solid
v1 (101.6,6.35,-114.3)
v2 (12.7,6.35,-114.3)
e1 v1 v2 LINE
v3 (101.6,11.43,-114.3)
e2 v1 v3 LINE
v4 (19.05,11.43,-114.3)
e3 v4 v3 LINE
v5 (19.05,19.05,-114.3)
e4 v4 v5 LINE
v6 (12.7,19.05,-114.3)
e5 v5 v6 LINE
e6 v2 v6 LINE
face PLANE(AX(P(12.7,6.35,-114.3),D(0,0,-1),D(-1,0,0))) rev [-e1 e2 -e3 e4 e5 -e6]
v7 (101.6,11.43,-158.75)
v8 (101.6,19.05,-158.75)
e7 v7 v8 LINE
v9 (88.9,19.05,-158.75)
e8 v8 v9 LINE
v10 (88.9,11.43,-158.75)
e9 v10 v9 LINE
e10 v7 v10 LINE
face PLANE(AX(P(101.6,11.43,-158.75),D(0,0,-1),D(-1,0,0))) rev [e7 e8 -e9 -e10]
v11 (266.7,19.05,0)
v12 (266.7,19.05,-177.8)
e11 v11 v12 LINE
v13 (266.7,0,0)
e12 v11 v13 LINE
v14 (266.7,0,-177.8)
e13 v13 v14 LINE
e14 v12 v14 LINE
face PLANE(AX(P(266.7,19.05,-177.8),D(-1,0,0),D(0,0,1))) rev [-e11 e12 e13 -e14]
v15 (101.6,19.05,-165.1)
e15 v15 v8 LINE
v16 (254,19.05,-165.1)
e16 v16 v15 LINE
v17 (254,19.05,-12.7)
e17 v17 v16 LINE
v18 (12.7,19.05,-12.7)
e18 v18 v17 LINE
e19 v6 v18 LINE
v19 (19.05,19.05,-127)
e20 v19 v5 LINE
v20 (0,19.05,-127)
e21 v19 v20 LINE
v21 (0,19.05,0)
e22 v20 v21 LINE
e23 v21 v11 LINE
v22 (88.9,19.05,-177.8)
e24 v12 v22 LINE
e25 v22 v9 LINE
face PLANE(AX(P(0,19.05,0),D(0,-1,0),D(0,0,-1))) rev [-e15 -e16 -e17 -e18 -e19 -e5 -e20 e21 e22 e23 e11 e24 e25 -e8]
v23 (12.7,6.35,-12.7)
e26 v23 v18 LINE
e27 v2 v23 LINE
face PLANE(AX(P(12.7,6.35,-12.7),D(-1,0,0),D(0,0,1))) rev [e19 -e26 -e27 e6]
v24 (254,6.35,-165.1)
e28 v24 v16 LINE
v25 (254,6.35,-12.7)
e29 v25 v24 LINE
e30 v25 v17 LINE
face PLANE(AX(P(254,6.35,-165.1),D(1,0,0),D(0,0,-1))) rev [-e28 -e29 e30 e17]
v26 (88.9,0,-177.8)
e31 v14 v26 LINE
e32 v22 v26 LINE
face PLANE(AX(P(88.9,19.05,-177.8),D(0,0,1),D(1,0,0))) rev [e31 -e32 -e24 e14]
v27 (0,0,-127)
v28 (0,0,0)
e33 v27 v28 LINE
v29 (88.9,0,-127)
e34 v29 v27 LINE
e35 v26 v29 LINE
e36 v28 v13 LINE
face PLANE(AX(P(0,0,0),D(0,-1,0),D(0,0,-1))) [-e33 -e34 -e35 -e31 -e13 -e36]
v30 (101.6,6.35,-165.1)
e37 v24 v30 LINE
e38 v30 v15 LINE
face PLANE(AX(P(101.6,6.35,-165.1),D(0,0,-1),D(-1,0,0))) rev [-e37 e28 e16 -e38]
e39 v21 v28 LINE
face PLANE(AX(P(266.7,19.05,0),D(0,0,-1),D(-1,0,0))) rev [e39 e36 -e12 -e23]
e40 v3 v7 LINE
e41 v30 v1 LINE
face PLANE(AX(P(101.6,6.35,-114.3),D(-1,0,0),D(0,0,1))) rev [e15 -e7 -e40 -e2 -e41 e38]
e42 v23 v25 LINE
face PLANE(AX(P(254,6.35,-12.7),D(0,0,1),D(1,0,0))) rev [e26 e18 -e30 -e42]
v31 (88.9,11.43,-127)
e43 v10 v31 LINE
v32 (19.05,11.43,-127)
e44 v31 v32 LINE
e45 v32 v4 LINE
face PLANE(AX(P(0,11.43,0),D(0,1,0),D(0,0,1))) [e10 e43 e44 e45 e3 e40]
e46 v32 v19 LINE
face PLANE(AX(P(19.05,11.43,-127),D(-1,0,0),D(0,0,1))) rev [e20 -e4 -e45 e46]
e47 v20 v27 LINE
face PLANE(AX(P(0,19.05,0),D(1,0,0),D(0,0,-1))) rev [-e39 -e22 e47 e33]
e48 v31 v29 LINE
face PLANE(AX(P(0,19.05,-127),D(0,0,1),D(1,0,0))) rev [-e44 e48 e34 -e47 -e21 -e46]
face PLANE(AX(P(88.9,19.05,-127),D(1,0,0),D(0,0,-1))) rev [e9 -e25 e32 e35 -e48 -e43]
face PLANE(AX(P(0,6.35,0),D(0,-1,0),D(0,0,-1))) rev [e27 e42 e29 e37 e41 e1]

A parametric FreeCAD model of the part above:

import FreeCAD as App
import Part
import Sketcher
from FreeCAD import Vector
Q = App.Units.Quantity

doc = App.newDocument("Part")
body = doc.addObject("PartDesign::Body", "Body")

sketch1 = doc.addObject("Sketcher::SketchObject", "Sketch")
body.addObject(sketch1)
sketch1.AttachmentSupport = (doc.XZ_Plane, [""])
sketch1.MapMode = "FlatFace"
sketch1.addGeometry(Part.LineSegment(Vector(0, -127, 0), Vector(0, 0, 0)), False)
sketch1.addGeometry(Part.LineSegment(Vector(0, 0, 0), Vector(267, 0, 0)), False)
sketch1.addGeometry(Part.LineSegment(Vector(267, 0, 0), Vector(267, -178, 0)), False)
sketch1.addGeometry(Part.LineSegment(Vector(267, -178, 0), Vector(89, -178, 0)), False)
sketch1.addGeometry(Part.LineSegment(Vector(89, -178, 0), Vector(89, -127, 0)), False)
sketch1.addGeometry(Part.LineSegment(Vector(89, -127, 0), Vector(0, -127, 0)), False)
sketch1.addConstraint(Sketcher.Constraint("Coincident", 0, 2, 1, 1))
sketch1.addConstraint(Sketcher.Constraint("Coincident", 1, 2, 2, 1))
sketch1.addConstraint(Sketcher.Constraint("Coincident", 2, 2, 3, 1))
sketch1.addConstraint(Sketcher.Constraint("Coincident", 3, 2, 4, 1))
sketch1.addConstraint(Sketcher.Constraint("Coincident", 4, 2, 5, 1))
sketch1.addConstraint(Sketcher.Constraint("Coincident", 5, 2, 0, 1))
sketch1.addConstraint(Sketcher.Constraint("Vertical", 0))
sketch1.addConstraint(Sketcher.Constraint("Horizontal", 1))
sketch1.addConstraint(Sketcher.Constraint("Vertical", 2))
sketch1.addConstraint(Sketcher.Constraint("Horizontal", 3))
sketch1.addConstraint(Sketcher.Constraint("Vertical", 4))
sketch1.addConstraint(Sketcher.Constraint("Horizontal", 5))
sketch1.addConstraint(Sketcher.Constraint("Coincident", 0, 2, -1, 1))
sketch1.addConstraint(Sketcher.Constraint("Equal", 3, 2))
sketch1.addConstraint(Sketcher.Constraint("DistanceX", 3, 2, 3, 1, Q("7 in")))
sketch1.addConstraint(Sketcher.Constraint("DistanceY", 0, 1, 0, 2, Q("5 in")))
sketch1.addConstraint(Sketcher.Constraint("DistanceX", 1, 1, 1, 2, Q("10.5 in")))
pad1 = doc.addObject("PartDesign::Pad", "Pad")
body.addObject(pad1)
pad1.Profile = sketch1
pad1.Length = Q("0.75 in")
pad1.Reversed = True

sketch2 = doc.addObject("Sketcher::SketchObject", "Sketch001")
body.addObject(sketch2)
sketch2.AttachmentSupport = (doc.XZ_Plane, [""])
sketch2.MapMode = "FlatFace"
sketch2.AttachmentOffset = App.Placement(Vector(0, 0, -0.75 * 25.4), App.Rotation())
sketch2.addGeometry(Part.LineSegment(Vector(102, -114, 0), Vector(13, -114, 0)), False)
sketch2.addGeometry(Part.LineSegment(Vector(13, -114, 0), Vector(13, -13, 0)), False)
sketch2.addGeometry(Part.LineSegment(Vector(13, -13, 0), Vector(254, -13, 0)), False)
sketch2.addGeometry(Part.LineSegment(Vector(254, -13, 0), Vector(254, -165, 0)), False)
sketch2.addGeometry(Part.LineSegment(Vector(254, -165, 0), Vector(102, -165, 0)), False)
sketch2.addGeometry(Part.LineSegment(Vector(102, -165, 0), Vector(102, -114, 0)), False)
sketch2.addConstraint(Sketcher.Constraint("Coincident", 0, 2, 1, 1))
sketch2.addConstraint(Sketcher.Constraint("Coincident", 1, 2, 2, 1))
sketch2.addConstraint(Sketcher.Constraint("Coincident", 2, 2, 3, 1))
sketch2.addConstraint(Sketcher.Constraint("Coincident", 3, 2, 4, 1))
sketch2.addConstraint(Sketcher.Constraint("Coincident", 4, 2, 5, 1))
sketch2.addConstraint(Sketcher.Constraint("Coincident", 5, 2, 0, 1))
sketch2.addConstraint(Sketcher.Constraint("Horizontal", 0))
sketch2.addConstraint(Sketcher.Constraint("Vertical", 1))
sketch2.addConstraint(Sketcher.Constraint("Horizontal", 2))
sketch2.addConstraint(Sketcher.Constraint("Vertical", 3))
sketch2.addConstraint(Sketcher.Constraint("Horizontal", 4))
sketch2.addConstraint(Sketcher.Constraint("Vertical", 5))
sketch2.addConstraint(Sketcher.Constraint("Equal", 4, 3))
sketch2.addConstraint(Sketcher.Constraint("DistanceX", 4, 2, 4, 1, Q("6 in")))
sketch2.addConstraint(Sketcher.Constraint("DistanceY", 1, 1, 1, 2, Q("4 in")))
sketch2.addConstraint(Sketcher.Constraint("DistanceX", 0, 2, 0, 1, Q("3.5 in")))
sketch2.addConstraint(Sketcher.Constraint("DistanceX", -1, 1, 2, 2, Q("10 in")))
sketch2.addConstraint(Sketcher.Constraint("DistanceY", 0, 2, -1, 1, Q("4.5 in")))
pocket1 = doc.addObject("PartDesign::Pocket", "Pocket")
body.addObject(pocket1)
pocket1.Profile = sketch2
pocket1.Length = Q("0.5 in")
pocket1.Reversed = True

sketch3 = doc.addObject("Sketcher::SketchObject", "Sketch002")
body.addObject(sketch3)
sketch3.AttachmentSupport = (doc.XZ_Plane, [""])
sketch3.MapMode = "FlatFace"
sketch3.AttachmentOffset = App.Placement(Vector(0, 0, -0.75 * 25.4), App.Rotation())
sketch3.addGeometry(Part.LineSegment(Vector(19, -127, 0), Vector(19, -114, 0)), False)
sketch3.addGeometry(Part.LineSegment(Vector(19, -114, 0), Vector(102, -114, 0)), False)
sketch3.addGeometry(Part.LineSegment(Vector(102, -114, 0), Vector(102, -159, 0)), False)
sketch3.addGeometry(Part.LineSegment(Vector(102, -159, 0), Vector(89, -159, 0)), False)
sketch3.addGeometry(Part.LineSegment(Vector(89, -159, 0), Vector(89, -127, 0)), False)
sketch3.addGeometry(Part.LineSegment(Vector(89, -127, 0), Vector(19, -127, 0)), False)
sketch3.addConstraint(Sketcher.Constraint("Coincident", 0, 2, 1, 1))
sketch3.addConstraint(Sketcher.Constraint("Coincident", 1, 2, 2, 1))
sketch3.addConstraint(Sketcher.Constraint("Coincident", 2, 2, 3, 1))
sketch3.addConstraint(Sketcher.Constraint("Coincident", 3, 2, 4, 1))
sketch3.addConstraint(Sketcher.Constraint("Coincident", 4, 2, 5, 1))
sketch3.addConstraint(Sketcher.Constraint("Coincident", 5, 2, 0, 1))
sketch3.addConstraint(Sketcher.Constraint("Vertical", 0))
sketch3.addConstraint(Sketcher.Constraint("Horizontal", 1))
sketch3.addConstraint(Sketcher.Constraint("Vertical", 2))
sketch3.addConstraint(Sketcher.Constraint("Horizontal", 3))
sketch3.addConstraint(Sketcher.Constraint("Vertical", 4))
sketch3.addConstraint(Sketcher.Constraint("Horizontal", 5))
sketch3.addConstraint(Sketcher.Constraint("Equal", 3, 0))
sketch3.addConstraint(Sketcher.Constraint("DistanceX", 3, 2, 3, 1, Q("0.5 in")))
sketch3.addConstraint(Sketcher.Constraint("DistanceX", -1, 1, 1, 2, Q("4 in")))
sketch3.addConstraint(Sketcher.Constraint("DistanceY", 4, 2, -1, 1, Q("5 in")))
sketch3.addConstraint(Sketcher.Constraint("DistanceX", 1, 1, 1, 2, Q("3.25 in")))
sketch3.addConstraint(Sketcher.Constraint("DistanceY", 2, 2, 2, 1, Q("1.75 in")))
pocket2 = doc.addObject("PartDesign::Pocket", "Pocket001")
body.addObject(pocket2)
pocket2.Profile = sketch3
pocket2.Length = Q("0.3 in")
pocket2.Reversed = True

doc.recompute()
